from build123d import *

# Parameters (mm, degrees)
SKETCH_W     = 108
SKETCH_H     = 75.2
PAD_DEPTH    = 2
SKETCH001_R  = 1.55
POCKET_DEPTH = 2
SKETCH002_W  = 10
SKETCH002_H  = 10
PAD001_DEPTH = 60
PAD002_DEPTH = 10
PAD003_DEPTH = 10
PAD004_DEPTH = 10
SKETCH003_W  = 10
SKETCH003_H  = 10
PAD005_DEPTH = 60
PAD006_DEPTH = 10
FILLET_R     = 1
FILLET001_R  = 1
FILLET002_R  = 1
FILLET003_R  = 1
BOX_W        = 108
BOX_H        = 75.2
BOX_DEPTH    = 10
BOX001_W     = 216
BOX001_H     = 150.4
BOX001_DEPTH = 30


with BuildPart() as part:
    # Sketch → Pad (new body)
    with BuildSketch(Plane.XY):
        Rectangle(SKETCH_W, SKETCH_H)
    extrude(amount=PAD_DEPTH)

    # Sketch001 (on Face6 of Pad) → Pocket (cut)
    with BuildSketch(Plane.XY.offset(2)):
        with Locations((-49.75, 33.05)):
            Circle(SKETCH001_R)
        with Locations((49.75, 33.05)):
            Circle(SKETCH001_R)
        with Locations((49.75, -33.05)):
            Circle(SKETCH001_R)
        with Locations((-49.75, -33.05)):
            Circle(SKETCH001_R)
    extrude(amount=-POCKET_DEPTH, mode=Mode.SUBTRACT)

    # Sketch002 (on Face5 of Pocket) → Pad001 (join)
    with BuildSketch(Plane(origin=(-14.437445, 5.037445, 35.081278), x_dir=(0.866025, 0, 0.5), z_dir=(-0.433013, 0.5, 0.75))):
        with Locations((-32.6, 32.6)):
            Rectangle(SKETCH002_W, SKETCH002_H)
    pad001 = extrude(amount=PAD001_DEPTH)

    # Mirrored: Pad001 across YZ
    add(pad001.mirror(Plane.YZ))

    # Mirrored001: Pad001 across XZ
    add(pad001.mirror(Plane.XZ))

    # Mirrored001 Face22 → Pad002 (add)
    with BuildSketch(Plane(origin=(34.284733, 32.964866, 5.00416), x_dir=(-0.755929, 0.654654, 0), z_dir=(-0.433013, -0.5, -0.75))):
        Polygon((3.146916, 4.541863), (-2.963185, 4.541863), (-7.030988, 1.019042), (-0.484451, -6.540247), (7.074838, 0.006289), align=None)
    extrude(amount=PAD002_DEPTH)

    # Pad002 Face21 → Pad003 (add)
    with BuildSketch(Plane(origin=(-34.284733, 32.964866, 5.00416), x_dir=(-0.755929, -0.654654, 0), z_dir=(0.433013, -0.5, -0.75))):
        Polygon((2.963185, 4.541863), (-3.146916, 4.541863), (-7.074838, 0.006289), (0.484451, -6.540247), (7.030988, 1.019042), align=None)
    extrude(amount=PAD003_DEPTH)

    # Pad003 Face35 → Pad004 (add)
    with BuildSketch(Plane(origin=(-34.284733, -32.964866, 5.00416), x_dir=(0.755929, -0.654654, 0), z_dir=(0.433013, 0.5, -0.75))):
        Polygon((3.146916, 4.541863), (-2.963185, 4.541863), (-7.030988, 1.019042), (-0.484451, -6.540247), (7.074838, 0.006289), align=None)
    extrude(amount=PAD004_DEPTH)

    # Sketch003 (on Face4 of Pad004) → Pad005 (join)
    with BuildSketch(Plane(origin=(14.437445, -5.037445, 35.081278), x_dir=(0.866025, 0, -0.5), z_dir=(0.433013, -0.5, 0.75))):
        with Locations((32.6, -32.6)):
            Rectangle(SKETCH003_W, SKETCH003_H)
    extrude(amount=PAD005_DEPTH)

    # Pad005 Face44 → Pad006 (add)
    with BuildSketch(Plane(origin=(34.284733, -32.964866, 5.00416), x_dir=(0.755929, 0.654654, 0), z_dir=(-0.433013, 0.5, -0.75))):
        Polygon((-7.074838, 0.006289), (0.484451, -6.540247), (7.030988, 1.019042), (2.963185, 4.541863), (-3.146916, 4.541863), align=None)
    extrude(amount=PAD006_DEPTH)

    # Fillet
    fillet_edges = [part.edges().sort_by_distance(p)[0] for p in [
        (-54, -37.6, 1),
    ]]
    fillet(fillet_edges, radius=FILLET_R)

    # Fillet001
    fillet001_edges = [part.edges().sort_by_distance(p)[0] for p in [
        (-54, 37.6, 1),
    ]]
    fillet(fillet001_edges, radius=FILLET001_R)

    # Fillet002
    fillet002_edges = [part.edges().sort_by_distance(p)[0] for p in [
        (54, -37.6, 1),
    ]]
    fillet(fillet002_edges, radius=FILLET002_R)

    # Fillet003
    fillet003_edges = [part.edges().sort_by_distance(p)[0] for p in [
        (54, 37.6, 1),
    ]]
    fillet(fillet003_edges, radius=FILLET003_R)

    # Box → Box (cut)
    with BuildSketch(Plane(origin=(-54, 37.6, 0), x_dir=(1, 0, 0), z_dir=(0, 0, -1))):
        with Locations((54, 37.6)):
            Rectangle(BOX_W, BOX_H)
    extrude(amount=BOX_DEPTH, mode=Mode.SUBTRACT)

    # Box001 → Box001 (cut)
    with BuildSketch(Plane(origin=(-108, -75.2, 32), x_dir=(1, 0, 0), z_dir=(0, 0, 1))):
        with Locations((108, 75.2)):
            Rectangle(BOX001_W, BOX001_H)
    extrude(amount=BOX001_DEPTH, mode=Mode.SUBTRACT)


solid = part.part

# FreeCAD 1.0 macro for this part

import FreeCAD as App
import Part
import Sketcher


def edges_at(feature, points):
    """Names of the edges that pass closest to the given points."""
    edges = feature.Shape.Edges
    near = lambda p: min(range(len(edges)), key=lambda i: edges[i].distToShape(Part.Vertex(*p))[0])
    return sorted({f"Edge{near(p) + 1}" for p in points})

doc = App.newDocument("Part")
body = doc.addObject("PartDesign::Body", "Body")

sketch1 = body.newObject("Sketcher::SketchObject", "Sketch")
sketch1.AttachmentSupport = (doc.getObject("XY_Plane"), [""])
sketch1.MapMode = "FlatFace"
sketch1.addGeometry([
    Part.LineSegment(App.Vector(-54, 37.6, 0), App.Vector(-54, -37.6, 0)),
    Part.LineSegment(App.Vector(-54, -37.6, 0), App.Vector(54, -37.6, 0)),
    Part.LineSegment(App.Vector(54, -37.6, 0), App.Vector(54, 37.6, 0)),
    Part.LineSegment(App.Vector(54, 37.6, 0), App.Vector(-54, 37.6, 0)),
], False)
sketch1.addConstraint([
    Sketcher.Constraint("Coincident", 0, 2, 1, 1),
    Sketcher.Constraint("Coincident", 1, 2, 2, 1),
    Sketcher.Constraint("Coincident", 2, 2, 3, 1),
    Sketcher.Constraint("Coincident", 3, 2, 0, 1),
    Sketcher.Constraint("Vertical", 0),
    Sketcher.Constraint("Horizontal", 1),
    Sketcher.Constraint("Vertical", 2),
    Sketcher.Constraint("Horizontal", 3),
    Sketcher.Constraint("Symmetric", 0, 2, 2, 2, -1, 1),
    Sketcher.Constraint("DistanceX", 1, 1, 1, 2, 108.0),
    Sketcher.Constraint("DistanceY", 0, 2, 0, 1, 75.2),
])
pad1 = body.newObject("PartDesign::Pad", "Pad")
pad1.Profile = sketch1
pad1.Length = 2

sketch2 = body.newObject("Sketcher::SketchObject", "Sketch001")
sketch2.AttachmentSupport = (doc.getObject("XY_Plane"), [""])
sketch2.MapMode = "FlatFace"
sketch2.AttachmentOffset = App.Placement(App.Vector(0, 0, 2), App.Rotation())
sketch2.addGeometry([
    Part.Circle(App.Vector(-49.75, 33.05, 0), App.Vector(0, 0, 1), 1.55),
    Part.Circle(App.Vector(49.75, 33.05, 0), App.Vector(0, 0, 1), 1.55),
    Part.Circle(App.Vector(49.75, -33.05, 0), App.Vector(0, 0, 1), 1.55),
    Part.Circle(App.Vector(-49.75, -33.05, 0), App.Vector(0, 0, 1), 1.55),
], False)
sketch2.addConstraint([
    Sketcher.Constraint("Equal", 0, 1),
    Sketcher.Constraint("Equal", 1, 2),
    Sketcher.Constraint("Equal", 2, 3),
    Sketcher.Constraint("Symmetric", 0, 3, 2, 3, -1, 1),
    Sketcher.Constraint("Symmetric", 1, 3, 3, 3, -1, 1),
    Sketcher.Constraint("Symmetric", 0, 3, 1, 3, -2),
    Sketcher.Constraint("Diameter", 0, 3.1),
    Sketcher.Constraint("DistanceX", 0, 3, 1, 3, 99.5),
    Sketcher.Constraint("DistanceY", 2, 3, 1, 3, 66.1),
])
pocket1 = body.newObject("PartDesign::Pocket", "Pocket")
pocket1.Profile = sketch2
pocket1.Length = 2

sketch3 = body.newObject("Sketcher::SketchObject", "Sketch002")
sketch3.Placement = App.Placement(App.Vector(-14.437445, 5.037445, 35.081278), App.Rotation(App.Vector(0.866025267, 0.000000042, 0.500000237), App.Vector(0.250000054, 0.866025441, -0.433012595), App.Vector(-0.433012944, 0.499999935, 0.749999903), "ZXY"))
sketch3.addGeometry([
    Part.LineSegment(App.Vector(-37.6, 37.6, 0), App.Vector(-37.6, 27.6, 0)),
    Part.LineSegment(App.Vector(-37.6, 27.6, 0), App.Vector(-27.6, 27.6, 0)),
    Part.LineSegment(App.Vector(-27.6, 27.6, 0), App.Vector(-27.6, 37.6, 0)),
    Part.LineSegment(App.Vector(-27.6, 37.6, 0), App.Vector(-37.6, 37.6, 0)),
], False)
sketch3.addConstraint([
    Sketcher.Constraint("Coincident", 0, 2, 1, 1),
    Sketcher.Constraint("Coincident", 1, 2, 2, 1),
    Sketcher.Constraint("Coincident", 2, 2, 3, 1),
    Sketcher.Constraint("Coincident", 3, 2, 0, 1),
    Sketcher.Constraint("Vertical", 0),
    Sketcher.Constraint("Horizontal", 1),
    Sketcher.Constraint("Vertical", 2),
    Sketcher.Constraint("Horizontal", 3),
    Sketcher.Constraint("Equal", 3, 0),
    Sketcher.Constraint("DistanceX", 1, 1, 1, 2, 10.0),
    Sketcher.Constraint("DistanceX", 0, 2, -1, 1, 37.6),
    Sketcher.Constraint("DistanceY", -1, 1, 0, 2, 27.6),
])
pad2 = body.newObject("PartDesign::Pad", "Pad001")
pad2.Profile = sketch3
pad2.Length = 60
doc.recompute()

mirrored = body.newObject("PartDesign::Mirrored", "Mirrored")
mirrored.Originals = [pad2]
mirrored.MirrorPlane = (doc.getObject("YZ_Plane"), [""])
body.Tip = mirrored
doc.recompute()

mirrored2 = body.newObject("PartDesign::Mirrored", "Mirrored001")
mirrored2.Originals = [pad2]
mirrored2.MirrorPlane = (doc.getObject("XZ_Plane"), [""])
body.Tip = mirrored2

sketch4 = body.newObject("Sketcher::SketchObject", "Sketch003")
sketch4.Placement = App.Placement(App.Vector(34.284733, 32.964866, 5.00416), App.Rotation(App.Vector(-0.75592877, 0.654653874, 0.000000063), App.Vector(0.49099031, 0.566946531, -0.661437937), App.Vector(-0.433012944, -0.499999935, -0.749999903), "ZXY"))
sketch4.addGeometry([
    Part.LineSegment(App.Vector(3.146916, 4.541863, 0), App.Vector(-2.963185, 4.541863, 0)),
    Part.LineSegment(App.Vector(-2.963185, 4.541863, 0), App.Vector(-7.030988, 1.019042, 0)),
    Part.LineSegment(App.Vector(-7.030988, 1.019042, 0), App.Vector(-0.484451, -6.540247, 0)),
    Part.LineSegment(App.Vector(-0.484451, -6.540247, 0), App.Vector(7.074838, 0.006289, 0)),
    Part.LineSegment(App.Vector(7.074838, 0.006289, 0), App.Vector(3.146916, 4.541863, 0)),
], False)
sketch4.addConstraint([
    Sketcher.Constraint("Coincident", 0, 2, 1, 1),
    Sketcher.Constraint("Coincident", 1, 2, 2, 1),
    Sketcher.Constraint("Coincident", 2, 2, 3, 1),
    Sketcher.Constraint("Coincident", 3, 2, 4, 1),
    Sketcher.Constraint("Coincident", 4, 2, 0, 1),
    Sketcher.Constraint("Horizontal", 0),
    Sketcher.Constraint("Perpendicular", 1, 2),
    Sketcher.Constraint("Perpendicular", 2, 3),
    Sketcher.Constraint("Perpendicular", 3, 4),
    Sketcher.Constraint("Equal", 2, 3),
    Sketcher.Constraint("Distance", 2, 10.0),
    Sketcher.Constraint("Distance", 4, 6.0),
    Sketcher.Constraint("DistanceX", 0, 2, 0, 1, 6.110101),
    Sketcher.Constraint("DistanceY", -1, 1, 1, 2, 1.019042),
    Sketcher.Constraint("DistanceX", 2, 2, -1, 1, 0.484451),
])
pad3 = body.newObject("PartDesign::Pad", "Pad002")
pad3.Profile = sketch4
pad3.Length = 10

sketch5 = body.newObject("Sketcher::SketchObject", "Sketch004")
sketch5.Placement = App.Placement(App.Vector(-34.284733, 32.964866, 5.00416), App.Rotation(App.Vector(-0.75592877, -0.654653874, -0.000000063), App.Vector(-0.49099031, 0.566946531, -0.661437937), App.Vector(0.433012944, -0.499999935, -0.749999903), "ZXY"))
sketch5.addGeometry([
    Part.LineSegment(App.Vector(2.963185, 4.541863, 0), App.Vector(-3.146916, 4.541863, 0)),
    Part.LineSegment(App.Vector(-3.146916, 4.541863, 0), App.Vector(-7.074838, 0.006289, 0)),
    Part.LineSegment(App.Vector(-7.074838, 0.006289, 0), App.Vector(0.484451, -6.540247, 0)),
    Part.LineSegment(App.Vector(0.484451, -6.540247, 0), App.Vector(7.030988, 1.019042, 0)),
    Part.LineSegment(App.Vector(7.030988, 1.019042, 0), App.Vector(2.963185, 4.541863, 0)),
], False)
sketch5.addConstraint([
    Sketcher.Constraint("Coincident", 0, 2, 1, 1),
    Sketcher.Constraint("Coincident", 1, 2, 2, 1),
    Sketcher.Constraint("Coincident", 2, 2, 3, 1),
    Sketcher.Constraint("Coincident", 3, 2, 4, 1),
    Sketcher.Constraint("Coincident", 4, 2, 0, 1),
    Sketcher.Constraint("Horizontal", 0),
    Sketcher.Constraint("Perpendicular", 1, 2),
    Sketcher.Constraint("Perpendicular", 2, 3),
    Sketcher.Constraint("Perpendicular", 3, 4),
    Sketcher.Constraint("Equal", 2, 3),
    Sketcher.Constraint("Distance", 1, 6.0),
    Sketcher.Constraint("Distance", 2, 9.999999),
    Sketcher.Constraint("DistanceX", 0, 2, 0, 1, 6.110101),
    Sketcher.Constraint("DistanceY", -1, 1, 1, 2, 0.006289),
    Sketcher.Constraint("DistanceX", -1, 1, 2, 2, 0.484451),
])
pad4 = body.newObject("PartDesign::Pad", "Pad003")
pad4.Profile = sketch5
pad4.Length = 10

sketch6 = body.newObject("Sketcher::SketchObject", "Sketch005")
sketch6.Placement = App.Placement(App.Vector(-34.284733, -32.964866, 5.00416), App.Rotation(App.Vector(0.75592877, -0.654653874, 0.000000063), App.Vector(-0.49099031, -0.566946531, -0.661437937), App.Vector(0.433012944, 0.499999935, -0.749999903), "ZXY"))
sketch6.addGeometry([
    Part.LineSegment(App.Vector(3.146916, 4.541863, 0), App.Vector(-2.963185, 4.541863, 0)),
    Part.LineSegment(App.Vector(-2.963185, 4.541863, 0), App.Vector(-7.030988, 1.019042, 0)),
    Part.LineSegment(App.Vector(-7.030988, 1.019042, 0), App.Vector(-0.484451, -6.540247, 0)),
    Part.LineSegment(App.Vector(-0.484451, -6.540247, 0), App.Vector(7.074838, 0.006289, 0)),
    Part.LineSegment(App.Vector(7.074838, 0.006289, 0), App.Vector(3.146916, 4.541863, 0)),
], False)
sketch6.addConstraint([
    Sketcher.Constraint("Coincident", 0, 2, 1, 1),
    Sketcher.Constraint("Coincident", 1, 2, 2, 1),
    Sketcher.Constraint("Coincident", 2, 2, 3, 1),
    Sketcher.Constraint("Coincident", 3, 2, 4, 1),
    Sketcher.Constraint("Coincident", 4, 2, 0, 1),
    Sketcher.Constraint("Horizontal", 0),
    Sketcher.Constraint("Perpendicular", 1, 2),
    Sketcher.Constraint("Perpendicular", 2, 3),
    Sketcher.Constraint("Perpendicular", 3, 4),
    Sketcher.Constraint("Equal", 2, 3),
    Sketcher.Constraint("Distance", 2, 10.0),
    Sketcher.Constraint("Distance", 4, 6.0),
    Sketcher.Constraint("DistanceX", 0, 2, 0, 1, 6.110101),
    Sketcher.Constraint("DistanceY", -1, 1, 1, 2, 1.019042),
    Sketcher.Constraint("DistanceX", 2, 2, -1, 1, 0.484451),
])
pad5 = body.newObject("PartDesign::Pad", "Pad004")
pad5.Profile = sketch6
pad5.Length = 10

sketch7 = body.newObject("Sketcher::SketchObject", "Sketch006")
sketch7.Placement = App.Placement(App.Vector(14.437445, -5.037445, 35.081278), App.Rotation(App.Vector(0.866025267, 0.000000042, -0.500000237), App.Vector(0.250000054, 0.866025441, 0.433012595), App.Vector(0.433012944, -0.499999935, 0.749999903), "ZXY"))
sketch7.addGeometry([
    Part.LineSegment(App.Vector(27.6, -27.6, 0), App.Vector(27.6, -37.6, 0)),
    Part.LineSegment(App.Vector(27.6, -37.6, 0), App.Vector(37.6, -37.6, 0)),
    Part.LineSegment(App.Vector(37.6, -37.6, 0), App.Vector(37.6, -27.6, 0)),
    Part.LineSegment(App.Vector(37.6, -27.6, 0), App.Vector(27.6, -27.6, 0)),
], False)
sketch7.addConstraint([
    Sketcher.Constraint("Coincident", 0, 2, 1, 1),
    Sketcher.Constraint("Coincident", 1, 2, 2, 1),
    Sketcher.Constraint("Coincident", 2, 2, 3, 1),
    Sketcher.Constraint("Coincident", 3, 2, 0, 1),
    Sketcher.Constraint("Vertical", 0),
    Sketcher.Constraint("Horizontal", 1),
    Sketcher.Constraint("Vertical", 2),
    Sketcher.Constraint("Horizontal", 3),
    Sketcher.Constraint("Equal", 3, 0),
    Sketcher.Constraint("DistanceX", 1, 1, 1, 2, 10.0),
    Sketcher.Constraint("DistanceX", -1, 1, 0, 2, 27.6),
    Sketcher.Constraint("DistanceY", 0, 2, -1, 1, 37.6),
])
pad6 = body.newObject("PartDesign::Pad", "Pad005")
pad6.Profile = sketch7
pad6.Length = 60

sketch8 = body.newObject("Sketcher::SketchObject", "Sketch007")
sketch8.Placement = App.Placement(App.Vector(34.284733, -32.964866, 5.00416), App.Rotation(App.Vector(0.75592877, 0.654653874, -0.000000063), App.Vector(0.49099031, -0.566946531, -0.661437937), App.Vector(-0.433012944, 0.499999935, -0.749999903), "ZXY"))
sketch8.addGeometry([
    Part.LineSegment(App.Vector(-7.074838, 0.006289, 0), App.Vector(0.484451, -6.540247, 0)),
    Part.LineSegment(App.Vector(0.484451, -6.540247, 0), App.Vector(7.030988, 1.019042, 0)),
    Part.LineSegment(App.Vector(7.030988, 1.019042, 0), App.Vector(2.963185, 4.541863, 0)),
    Part.LineSegment(App.Vector(2.963185, 4.541863, 0), App.Vector(-3.146916, 4.541863, 0)),
    Part.LineSegment(App.Vector(-3.146916, 4.541863, 0), App.Vector(-7.074838, 0.006289, 0)),
], False)
sketch8.addConstraint([
    Sketcher.Constraint("Coincident", 0, 2, 1, 1),
    Sketcher.Constraint("Coincident", 1, 2, 2, 1),
    Sketcher.Constraint("Coincident", 2, 2, 3, 1),
    Sketcher.Constraint("Coincident", 3, 2, 4, 1),
    Sketcher.Constraint("Coincident", 4, 2, 0, 1),
    Sketcher.Constraint("Horizontal", 3),
    Sketcher.Constraint("Perpendicular", 0, 1),
    Sketcher.Constraint("Perpendicular", 1, 2),
    Sketcher.Constraint("Perpendicular", 2, 4),
    Sketcher.Constraint("Equal", 0, 1),
    Sketcher.Constraint("Distance", 0, 9.999999),
    Sketcher.Constraint("Distance", 4, 6.0),
    Sketcher.Constraint("DistanceX", 3, 2, 3, 1, 6.110101),
    Sketcher.Constraint("DistanceX", -1, 1, 0, 2, 0.484451),
    Sketcher.Constraint("DistanceY", -1, 1, 1, 2, 1.019042),
])
pad7 = body.newObject("PartDesign::Pad", "Pad006")
pad7.Profile = sketch8
pad7.Length = 10
doc.recompute()

fillet = body.newObject("PartDesign::Fillet", "Fillet")
fillet.Base = (pad7, edges_at(pad7, [(-54, -37.6, 1)]))
fillet.Radius = 1
doc.recompute()

fillet2 = body.newObject("PartDesign::Fillet", "Fillet001")
fillet2.Base = (fillet, edges_at(fillet, [(-54, 37.6, 1)]))
fillet2.Radius = 1
doc.recompute()

fillet3 = body.newObject("PartDesign::Fillet", "Fillet002")
fillet3.Base = (fillet2, edges_at(fillet2, [(54, -37.6, 1)]))
fillet3.Radius = 1
doc.recompute()

fillet4 = body.newObject("PartDesign::Fillet", "Fillet003")
fillet4.Base = (fillet3, edges_at(fillet3, [(54, 37.6, 1)]))
fillet4.Radius = 1

sketch9 = body.newObject("Sketcher::SketchObject", "Sketch008")
sketch9.AttachmentSupport = (doc.getObject("XY_Plane"), [""])
sketch9.MapMode = "FlatFace"
sketch9.addGeometry([
    Part.LineSegment(App.Vector(-54, -37.6, 0), App.Vector(-54, 37.6, 0)),
    Part.LineSegment(App.Vector(-54, 37.6, 0), App.Vector(54, 37.6, 0)),
    Part.LineSegment(App.Vector(54, 37.6, 0), App.Vector(54, -37.6, 0)),
    Part.LineSegment(App.Vector(54, -37.6, 0), App.Vector(-54, -37.6, 0)),
], False)
sketch9.addConstraint([
    Sketcher.Constraint("Coincident", 0, 2, 1, 1),
    Sketcher.Constraint("Coincident", 1, 2, 2, 1),
    Sketcher.Constraint("Coincident", 2, 2, 3, 1),
    Sketcher.Constraint("Coincident", 3, 2, 0, 1),
    Sketcher.Constraint("Vertical", 0),
    Sketcher.Constraint("Horizontal", 1),
    Sketcher.Constraint("Vertical", 2),
    Sketcher.Constraint("Horizontal", 3),
    Sketcher.Constraint("Symmetric", 0, 2, 2, 2, -1, 1),
    Sketcher.Constraint("DistanceX", 1, 1, 1, 2, 108.0),
    Sketcher.Constraint("DistanceY", 0, 1, 0, 2, 75.2),
])
pocket2 = body.newObject("PartDesign::Pocket", "Pocket001")
pocket2.Profile = sketch9
pocket2.Length = 10

sketch10 = body.newObject("Sketcher::SketchObject", "Sketch009")
sketch10.AttachmentSupport = (doc.getObject("XY_Plane"), [""])
sketch10.MapMode = "FlatFace"
sketch10.AttachmentOffset = App.Placement(App.Vector(0, 0, 32), App.Rotation())
sketch10.addGeometry([
    Part.LineSegment(App.Vector(-108, 75.2, 0), App.Vector(-108, -75.2, 0)),
    Part.LineSegment(App.Vector(-108, -75.2, 0), App.Vector(108, -75.2, 0)),
    Part.LineSegment(App.Vector(108, -75.2, 0), App.Vector(108, 75.2, 0)),
    Part.LineSegment(App.Vector(108, 75.2, 0), App.Vector(-108, 75.2, 0)),
], False)
sketch10.addConstraint([
    Sketcher.Constraint("Coincident", 0, 2, 1, 1),
    Sketcher.Constraint("Coincident", 1, 2, 2, 1),
    Sketcher.Constraint("Coincident", 2, 2, 3, 1),
    Sketcher.Constraint("Coincident", 3, 2, 0, 1),
    Sketcher.Constraint("Vertical", 0),
    Sketcher.Constraint("Horizontal", 1),
    Sketcher.Constraint("Vertical", 2),
    Sketcher.Constraint("Horizontal", 3),
    Sketcher.Constraint("Symmetric", 0, 2, 2, 2, -1, 1),
    Sketcher.Constraint("DistanceX", 1, 1, 1, 2, 216.0),
    Sketcher.Constraint("DistanceY", 0, 2, 0, 1, 150.4),
])
pocket3 = body.newObject("PartDesign::Pocket", "Pocket002")
pocket3.Profile = sketch10
pocket3.Length = 30
pocket3.Reversed = True

doc.recompute()
